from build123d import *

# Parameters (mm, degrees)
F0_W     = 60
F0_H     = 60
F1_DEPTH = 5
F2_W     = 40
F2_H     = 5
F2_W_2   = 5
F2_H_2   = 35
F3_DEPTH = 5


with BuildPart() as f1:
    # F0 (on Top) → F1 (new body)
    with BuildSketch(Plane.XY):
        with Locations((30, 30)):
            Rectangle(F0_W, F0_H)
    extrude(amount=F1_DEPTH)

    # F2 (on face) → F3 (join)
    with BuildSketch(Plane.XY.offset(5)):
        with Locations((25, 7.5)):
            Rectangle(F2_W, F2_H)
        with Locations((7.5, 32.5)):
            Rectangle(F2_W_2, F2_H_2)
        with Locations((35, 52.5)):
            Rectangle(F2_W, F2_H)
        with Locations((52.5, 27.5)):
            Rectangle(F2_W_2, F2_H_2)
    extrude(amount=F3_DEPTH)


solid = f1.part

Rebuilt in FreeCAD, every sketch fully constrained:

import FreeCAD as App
import Part
import Sketcher
from FreeCAD import Vector
Q = App.Units.Quantity


def add_polygon(sketch, points):
    """Adds a closed chain of lines whose ends are joined by coincident constraints."""
    first, n = sketch.GeometryCount, len(points)
    for a, b in zip(points, points[1:] + points[:1]):
        sketch.addGeometry(Part.LineSegment(App.Vector(*a, 0), App.Vector(*b, 0)), False)
    for i in range(n):
        sketch.addConstraint(Sketcher.Constraint("Coincident", first + i, 2, first + (i + 1) % n, 1))

doc = App.newDocument("Part")
body = doc.addObject("PartDesign::Body", "Body")

# Sketch on XY plane
sketch1 = body.newObject("Sketcher::SketchObject", "Sketch")
sketch1.AttachmentSupport = (doc.getObject("XY_Plane"), [""])
sketch1.MapMode = "FlatFace"
add_polygon(sketch1, [(0, 60), (0, 0), (60, 0), (60, 60)])  # lines 0-3
sketch1.addConstraint(Sketcher.Constraint("Vertical", 0))
sketch1.addConstraint(Sketcher.Constraint("Horizontal", 1))
sketch1.addConstraint(Sketcher.Constraint("Vertical", 2))
sketch1.addConstraint(Sketcher.Constraint("Horizontal", 3))
sketch1.addConstraint(Sketcher.Constraint("Coincident", 0, 2, -1, 1))
sketch1.addConstraint(Sketcher.Constraint("Equal", 3, 0))
sketch1.addConstraint(Sketcher.Constraint("DistanceX", 1, 1, 1, 2, Q("60 mm")))
pad1 = body.newObject("PartDesign::Pad", "Pad")
pad1.Profile = sketch1
pad1.Length = 5

# Sketch on XY plane
sketch2 = body.newObject("Sketcher::SketchObject", "Sketch001")
sketch2.AttachmentSupport = (doc.getObject("XY_Plane"), [""])
sketch2.MapMode = "FlatFace"
sketch2.AttachmentOffset = App.Placement(Vector(0, 0, 5), App.Rotation())
add_polygon(sketch2, [(5, 10), (5, 5), (45, 5), (45, 10)])  # lines 0-3
add_polygon(sketch2, [(5, 50), (5, 15), (10, 15), (10, 50)])  # lines 4-7
add_polygon(sketch2, [(15, 55), (15, 50), (55, 50), (55, 55)])  # lines 8-11
add_polygon(sketch2, [(50, 45), (50, 10), (55, 10), (55, 45)])  # lines 12-15
sketch2.addConstraint(Sketcher.Constraint("Vertical", 0))
sketch2.addConstraint(Sketcher.Constraint("Horizontal", 1))
sketch2.addConstraint(Sketcher.Constraint("Vertical", 2))
sketch2.addConstraint(Sketcher.Constraint("Horizontal", 3))
sketch2.addConstraint(Sketcher.Constraint("Vertical", 4))
sketch2.addConstraint(Sketcher.Constraint("Horizontal", 5))
sketch2.addConstraint(Sketcher.Constraint("Vertical", 6))
sketch2.addConstraint(Sketcher.Constraint("Horizontal", 7))
sketch2.addConstraint(Sketcher.Constraint("Vertical", 8))
sketch2.addConstraint(Sketcher.Constraint("Horizontal", 9))
sketch2.addConstraint(Sketcher.Constraint("Vertical", 10))
sketch2.addConstraint(Sketcher.Constraint("Horizontal", 11))
sketch2.addConstraint(Sketcher.Constraint("Vertical", 12))
sketch2.addConstraint(Sketcher.Constraint("Horizontal", 13))
sketch2.addConstraint(Sketcher.Constraint("Vertical", 14))
sketch2.addConstraint(Sketcher.Constraint("Horizontal", 15))
sketch2.addConstraint(Sketcher.Constraint("Horizontal", 7, 2, 8, 2))
sketch2.addConstraint(Sketcher.Constraint("Horizontal", 3, 2, 12, 2))
sketch2.addConstraint(Sketcher.Constraint("Vertical", 3, 2, 4, 2))
sketch2.addConstraint(Sketcher.Constraint("Vertical", 10, 2, 13, 2))
sketch2.addConstraint(Sketcher.Constraint("Equal", 3, 9))
sketch2.addConstraint(Sketcher.Constraint("Equal", 7, 13))
sketch2.addConstraint(Sketcher.Constraint("Equal", 15, 0))
sketch2.addConstraint(Sketcher.Constraint("Equal", 2, 8))
sketch2.addConstraint(Sketcher.Constraint("Equal", 6, 12))
sketch2.addConstraint(Sketcher.Constraint("DistanceX", 1, 1, 1, 2, Q("40 mm")))
sketch2.addConstraint(Sketcher.Constraint("DistanceX", 5, 1, 5, 2, Q("5 mm")))
sketch2.addConstraint(Sketcher.Constraint("DistanceY", 4, 2, 4, 1, Q("35 mm")))
sketch2.addConstraint(Sketcher.Constraint("DistanceX", -1, 1, 0, 2, Q("5 mm")))
sketch2.addConstraint(Sketcher.Constraint("DistanceY", -1, 1, 0, 2, Q("5 mm")))
sketch2.addConstraint(Sketcher.Constraint("DistanceY", -1, 1, 4, 2, Q("15 mm")))
sketch2.addConstraint(Sketcher.Constraint("DistanceX", -1, 1, 8, 2, Q("15 mm")))
pad2 = body.newObject("PartDesign::Pad", "Pad001")
pad2.Profile = sketch2
pad2.Length = 5

doc.recompute()
